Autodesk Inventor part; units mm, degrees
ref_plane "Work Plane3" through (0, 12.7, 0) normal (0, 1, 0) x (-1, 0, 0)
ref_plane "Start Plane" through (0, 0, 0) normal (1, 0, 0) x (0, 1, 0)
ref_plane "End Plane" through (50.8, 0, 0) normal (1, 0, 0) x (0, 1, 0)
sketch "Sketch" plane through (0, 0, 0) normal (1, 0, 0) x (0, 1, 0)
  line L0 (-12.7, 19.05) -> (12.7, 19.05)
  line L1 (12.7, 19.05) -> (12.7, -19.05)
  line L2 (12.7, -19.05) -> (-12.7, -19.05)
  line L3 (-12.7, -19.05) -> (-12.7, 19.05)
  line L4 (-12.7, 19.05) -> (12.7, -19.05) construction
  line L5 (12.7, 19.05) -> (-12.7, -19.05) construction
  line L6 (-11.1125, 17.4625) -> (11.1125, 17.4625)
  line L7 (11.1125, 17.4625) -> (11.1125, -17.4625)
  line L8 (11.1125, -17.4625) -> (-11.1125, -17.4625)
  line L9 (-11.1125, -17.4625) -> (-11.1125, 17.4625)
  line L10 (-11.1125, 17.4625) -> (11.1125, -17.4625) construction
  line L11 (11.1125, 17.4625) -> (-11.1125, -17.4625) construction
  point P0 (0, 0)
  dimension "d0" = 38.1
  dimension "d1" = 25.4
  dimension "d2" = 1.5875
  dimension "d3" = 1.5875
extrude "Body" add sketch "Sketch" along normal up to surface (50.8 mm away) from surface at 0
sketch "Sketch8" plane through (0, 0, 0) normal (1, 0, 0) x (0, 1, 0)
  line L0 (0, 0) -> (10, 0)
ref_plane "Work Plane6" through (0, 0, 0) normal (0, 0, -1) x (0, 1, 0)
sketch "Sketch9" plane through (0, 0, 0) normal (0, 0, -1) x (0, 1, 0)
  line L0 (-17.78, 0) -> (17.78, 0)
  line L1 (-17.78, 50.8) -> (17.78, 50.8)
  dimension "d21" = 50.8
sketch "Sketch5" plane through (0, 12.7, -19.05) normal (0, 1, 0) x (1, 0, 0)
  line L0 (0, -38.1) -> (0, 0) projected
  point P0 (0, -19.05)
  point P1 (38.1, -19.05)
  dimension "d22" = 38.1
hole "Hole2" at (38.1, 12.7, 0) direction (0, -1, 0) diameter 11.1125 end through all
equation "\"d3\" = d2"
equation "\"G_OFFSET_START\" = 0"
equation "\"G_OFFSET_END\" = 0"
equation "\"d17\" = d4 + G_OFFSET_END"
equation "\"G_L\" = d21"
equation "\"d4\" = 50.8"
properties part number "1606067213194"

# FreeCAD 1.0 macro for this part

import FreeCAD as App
import Part
import Sketcher

V = App.Vector
Q = App.Units.Quantity


def add_polygon(sketch, points):
    """Adds a closed chain of lines whose ends are joined by coincident constraints."""
    first, n = sketch.GeometryCount, len(points)
    for a, b in zip(points, points[1:] + points[:1]):
        sketch.addGeometry(Part.LineSegment(App.Vector(*a, 0), App.Vector(*b, 0)), False)
    for i in range(n):
        sketch.addConstraint(Sketcher.Constraint("Coincident", first + i, 2, first + (i + 1) % n, 1))

doc = App.newDocument("Part")
body = doc.addObject("PartDesign::Body", "Body")

sketch1 = doc.addObject("Sketcher::SketchObject", "Sketch")
body.addObject(sketch1)
sketch1.AttachmentSupport = (doc.YZ_Plane, [""])
sketch1.MapMode = "FlatFace"
add_polygon(sketch1, [(12.7, 19.05), (-12.7, 19.05), (-12.7, -19.05), (12.7, -19.05)])
add_polygon(sketch1, [(-11.1125, -17.4625), (-11.1125, 17.4625), (11.1125, 17.4625), (11.1125, -17.4625)])
sketch1.addConstraint([
    Sketcher.Constraint("Horizontal", 0),
    Sketcher.Constraint("Vertical", 1),
    Sketcher.Constraint("Horizontal", 2),
    Sketcher.Constraint("Vertical", 3),
    Sketcher.Constraint("Vertical", 4),
    Sketcher.Constraint("Horizontal", 5),
    Sketcher.Constraint("Vertical", 6),
    Sketcher.Constraint("Horizontal", 7),
    Sketcher.Constraint("Symmetric", 0, 2, 2, 2, -1, 1),
    Sketcher.Constraint("Symmetric", 4, 2, 6, 2, -1, 1),
    Sketcher.Constraint("DistanceX", 0, 2, 0, 1, Q("1 in")),
    Sketcher.Constraint("DistanceY", 1, 2, 1, 1, Q("1.5 in")),
    Sketcher.Constraint("DistanceX", 0, 2, 4, 2, Q("0.0625 in")),
    Sketcher.Constraint("DistanceY", 4, 2, 0, 2, Q("0.0625 in")),
])
pad1 = doc.addObject("PartDesign::Pad", "Pad")
body.addObject(pad1)
pad1.Profile = sketch1
pad1.Length = Q("2 in")

sketch2 = doc.addObject("Sketcher::SketchObject", "Sketch001")
body.addObject(sketch2)
sketch2.AttachmentSupport = (doc.XZ_Plane, [""])
sketch2.MapMode = "FlatFace"
sketch2.AttachmentOffset = App.Placement(V(0, 0, -0.5 * 25.4), App.Rotation())
sketch2.addGeometry(Part.Circle(V(38.1, 0, 0), V(0, 0, 1), 5.55625), False)
sketch2.addConstraint([
    Sketcher.Constraint("PointOnObject", 0, 3, -1),
    Sketcher.Constraint("Diameter", 0, Q("0.4375 in")),
    Sketcher.Constraint("DistanceX", -1, 1, 0, 3, Q("1.5 in")),
])
doc.recompute()
hole = doc.addObject("PartDesign::Hole", "Hole")
body.addObject(hole)
hole.Profile = sketch2
hole.ThreadType = "None"
hole.Diameter = Q("0.4375 in")
hole.DepthType = "ThroughAll"
hole.Reversed = True

doc.recompute()
